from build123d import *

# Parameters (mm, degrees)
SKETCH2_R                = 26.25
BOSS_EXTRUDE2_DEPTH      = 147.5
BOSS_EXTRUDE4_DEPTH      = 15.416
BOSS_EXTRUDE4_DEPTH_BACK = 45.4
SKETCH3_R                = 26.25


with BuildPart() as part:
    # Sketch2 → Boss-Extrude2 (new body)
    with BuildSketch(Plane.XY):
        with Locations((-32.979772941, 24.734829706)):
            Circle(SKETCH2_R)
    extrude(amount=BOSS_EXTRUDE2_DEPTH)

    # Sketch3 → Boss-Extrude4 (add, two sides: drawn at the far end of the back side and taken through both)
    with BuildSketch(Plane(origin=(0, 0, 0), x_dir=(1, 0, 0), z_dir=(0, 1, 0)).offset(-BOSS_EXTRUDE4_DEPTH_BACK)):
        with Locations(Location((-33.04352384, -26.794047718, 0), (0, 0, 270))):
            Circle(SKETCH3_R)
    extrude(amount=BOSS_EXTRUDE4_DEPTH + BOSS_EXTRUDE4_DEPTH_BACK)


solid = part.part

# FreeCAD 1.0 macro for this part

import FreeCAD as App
import Part
import Sketcher
from FreeCAD import Vector
Q = App.Units.Quantity

doc = App.newDocument("Part")
params = doc.addObject("Spreadsheet::Sheet", "Params")
for row, (alias, value) in enumerate([
    ("sketch1_diameter", "52.5 mm"),
    ("pad1_length", "147.5 mm"),
    ("sketch2_diameter", "52.5 mm"),
    ("pad2_length", "15.416 mm"),
    ("pad2_length2", "45.4 mm"),
], start=1):
    params.set(f"A{row}", alias)
    params.set(f"B{row}", "=" + value)
    params.setAlias(f"B{row}", alias)

body = doc.addObject("PartDesign::Body", "Body")

# Sketch on XY plane
sketch1 = body.newObject("Sketcher::SketchObject", "Sketch")
sketch1.AttachmentSupport = (doc.getObject("XY_Plane"), [""])
sketch1.MapMode = "FlatFace"
sketch1.addGeometry(Part.Circle(Vector(-33, 25, 0), Vector(0, 0, 1), 26), False)
sketch1.addConstraint(Sketcher.Constraint("Diameter", 0, Q("52.5 mm")))
sketch1.addConstraint(Sketcher.Constraint("DistanceY", -1, 1, 0, 3, Q("24.73483 mm")))
sketch1.addConstraint(Sketcher.Constraint("DistanceX", 0, 3, -1, 1, Q("32.979773 mm")))
sketch1.setExpression("Constraints[0]", "Params.sketch1_diameter")
pad1 = body.newObject("PartDesign::Pad", "Pad")
pad1.Profile = sketch1
pad1.setExpression("Length", "Params.pad1_length")

# Sketch on XZ plane
sketch2 = body.newObject("Sketcher::SketchObject", "Sketch001")
sketch2.AttachmentSupport = (doc.getObject("XZ_Plane"), [""])
sketch2.MapMode = "FlatFace"
sketch2.addGeometry(Part.Circle(Vector(-33, 27, 0), Vector(0, 0, 1), 26), False)
sketch2.addConstraint(Sketcher.Constraint("Diameter", 0, Q("52.5 mm")))
sketch2.addConstraint(Sketcher.Constraint("DistanceX", 0, 3, -1, 1, Q("33.043524 mm")))
sketch2.addConstraint(Sketcher.Constraint("DistanceY", -1, 1, 0, 3, Q("26.794048 mm")))
sketch2.setExpression("Constraints[0]", "Params.sketch2_diameter")
pad2 = body.newObject("PartDesign::Pad", "Pad001")
pad2.Profile = sketch2
pad2.Type = "TwoLengths"
pad2.setExpression("Length", "Params.pad2_length")
pad2.setExpression("Length2", "Params.pad2_length2")
pad2.Reversed = True

doc.recompute()
